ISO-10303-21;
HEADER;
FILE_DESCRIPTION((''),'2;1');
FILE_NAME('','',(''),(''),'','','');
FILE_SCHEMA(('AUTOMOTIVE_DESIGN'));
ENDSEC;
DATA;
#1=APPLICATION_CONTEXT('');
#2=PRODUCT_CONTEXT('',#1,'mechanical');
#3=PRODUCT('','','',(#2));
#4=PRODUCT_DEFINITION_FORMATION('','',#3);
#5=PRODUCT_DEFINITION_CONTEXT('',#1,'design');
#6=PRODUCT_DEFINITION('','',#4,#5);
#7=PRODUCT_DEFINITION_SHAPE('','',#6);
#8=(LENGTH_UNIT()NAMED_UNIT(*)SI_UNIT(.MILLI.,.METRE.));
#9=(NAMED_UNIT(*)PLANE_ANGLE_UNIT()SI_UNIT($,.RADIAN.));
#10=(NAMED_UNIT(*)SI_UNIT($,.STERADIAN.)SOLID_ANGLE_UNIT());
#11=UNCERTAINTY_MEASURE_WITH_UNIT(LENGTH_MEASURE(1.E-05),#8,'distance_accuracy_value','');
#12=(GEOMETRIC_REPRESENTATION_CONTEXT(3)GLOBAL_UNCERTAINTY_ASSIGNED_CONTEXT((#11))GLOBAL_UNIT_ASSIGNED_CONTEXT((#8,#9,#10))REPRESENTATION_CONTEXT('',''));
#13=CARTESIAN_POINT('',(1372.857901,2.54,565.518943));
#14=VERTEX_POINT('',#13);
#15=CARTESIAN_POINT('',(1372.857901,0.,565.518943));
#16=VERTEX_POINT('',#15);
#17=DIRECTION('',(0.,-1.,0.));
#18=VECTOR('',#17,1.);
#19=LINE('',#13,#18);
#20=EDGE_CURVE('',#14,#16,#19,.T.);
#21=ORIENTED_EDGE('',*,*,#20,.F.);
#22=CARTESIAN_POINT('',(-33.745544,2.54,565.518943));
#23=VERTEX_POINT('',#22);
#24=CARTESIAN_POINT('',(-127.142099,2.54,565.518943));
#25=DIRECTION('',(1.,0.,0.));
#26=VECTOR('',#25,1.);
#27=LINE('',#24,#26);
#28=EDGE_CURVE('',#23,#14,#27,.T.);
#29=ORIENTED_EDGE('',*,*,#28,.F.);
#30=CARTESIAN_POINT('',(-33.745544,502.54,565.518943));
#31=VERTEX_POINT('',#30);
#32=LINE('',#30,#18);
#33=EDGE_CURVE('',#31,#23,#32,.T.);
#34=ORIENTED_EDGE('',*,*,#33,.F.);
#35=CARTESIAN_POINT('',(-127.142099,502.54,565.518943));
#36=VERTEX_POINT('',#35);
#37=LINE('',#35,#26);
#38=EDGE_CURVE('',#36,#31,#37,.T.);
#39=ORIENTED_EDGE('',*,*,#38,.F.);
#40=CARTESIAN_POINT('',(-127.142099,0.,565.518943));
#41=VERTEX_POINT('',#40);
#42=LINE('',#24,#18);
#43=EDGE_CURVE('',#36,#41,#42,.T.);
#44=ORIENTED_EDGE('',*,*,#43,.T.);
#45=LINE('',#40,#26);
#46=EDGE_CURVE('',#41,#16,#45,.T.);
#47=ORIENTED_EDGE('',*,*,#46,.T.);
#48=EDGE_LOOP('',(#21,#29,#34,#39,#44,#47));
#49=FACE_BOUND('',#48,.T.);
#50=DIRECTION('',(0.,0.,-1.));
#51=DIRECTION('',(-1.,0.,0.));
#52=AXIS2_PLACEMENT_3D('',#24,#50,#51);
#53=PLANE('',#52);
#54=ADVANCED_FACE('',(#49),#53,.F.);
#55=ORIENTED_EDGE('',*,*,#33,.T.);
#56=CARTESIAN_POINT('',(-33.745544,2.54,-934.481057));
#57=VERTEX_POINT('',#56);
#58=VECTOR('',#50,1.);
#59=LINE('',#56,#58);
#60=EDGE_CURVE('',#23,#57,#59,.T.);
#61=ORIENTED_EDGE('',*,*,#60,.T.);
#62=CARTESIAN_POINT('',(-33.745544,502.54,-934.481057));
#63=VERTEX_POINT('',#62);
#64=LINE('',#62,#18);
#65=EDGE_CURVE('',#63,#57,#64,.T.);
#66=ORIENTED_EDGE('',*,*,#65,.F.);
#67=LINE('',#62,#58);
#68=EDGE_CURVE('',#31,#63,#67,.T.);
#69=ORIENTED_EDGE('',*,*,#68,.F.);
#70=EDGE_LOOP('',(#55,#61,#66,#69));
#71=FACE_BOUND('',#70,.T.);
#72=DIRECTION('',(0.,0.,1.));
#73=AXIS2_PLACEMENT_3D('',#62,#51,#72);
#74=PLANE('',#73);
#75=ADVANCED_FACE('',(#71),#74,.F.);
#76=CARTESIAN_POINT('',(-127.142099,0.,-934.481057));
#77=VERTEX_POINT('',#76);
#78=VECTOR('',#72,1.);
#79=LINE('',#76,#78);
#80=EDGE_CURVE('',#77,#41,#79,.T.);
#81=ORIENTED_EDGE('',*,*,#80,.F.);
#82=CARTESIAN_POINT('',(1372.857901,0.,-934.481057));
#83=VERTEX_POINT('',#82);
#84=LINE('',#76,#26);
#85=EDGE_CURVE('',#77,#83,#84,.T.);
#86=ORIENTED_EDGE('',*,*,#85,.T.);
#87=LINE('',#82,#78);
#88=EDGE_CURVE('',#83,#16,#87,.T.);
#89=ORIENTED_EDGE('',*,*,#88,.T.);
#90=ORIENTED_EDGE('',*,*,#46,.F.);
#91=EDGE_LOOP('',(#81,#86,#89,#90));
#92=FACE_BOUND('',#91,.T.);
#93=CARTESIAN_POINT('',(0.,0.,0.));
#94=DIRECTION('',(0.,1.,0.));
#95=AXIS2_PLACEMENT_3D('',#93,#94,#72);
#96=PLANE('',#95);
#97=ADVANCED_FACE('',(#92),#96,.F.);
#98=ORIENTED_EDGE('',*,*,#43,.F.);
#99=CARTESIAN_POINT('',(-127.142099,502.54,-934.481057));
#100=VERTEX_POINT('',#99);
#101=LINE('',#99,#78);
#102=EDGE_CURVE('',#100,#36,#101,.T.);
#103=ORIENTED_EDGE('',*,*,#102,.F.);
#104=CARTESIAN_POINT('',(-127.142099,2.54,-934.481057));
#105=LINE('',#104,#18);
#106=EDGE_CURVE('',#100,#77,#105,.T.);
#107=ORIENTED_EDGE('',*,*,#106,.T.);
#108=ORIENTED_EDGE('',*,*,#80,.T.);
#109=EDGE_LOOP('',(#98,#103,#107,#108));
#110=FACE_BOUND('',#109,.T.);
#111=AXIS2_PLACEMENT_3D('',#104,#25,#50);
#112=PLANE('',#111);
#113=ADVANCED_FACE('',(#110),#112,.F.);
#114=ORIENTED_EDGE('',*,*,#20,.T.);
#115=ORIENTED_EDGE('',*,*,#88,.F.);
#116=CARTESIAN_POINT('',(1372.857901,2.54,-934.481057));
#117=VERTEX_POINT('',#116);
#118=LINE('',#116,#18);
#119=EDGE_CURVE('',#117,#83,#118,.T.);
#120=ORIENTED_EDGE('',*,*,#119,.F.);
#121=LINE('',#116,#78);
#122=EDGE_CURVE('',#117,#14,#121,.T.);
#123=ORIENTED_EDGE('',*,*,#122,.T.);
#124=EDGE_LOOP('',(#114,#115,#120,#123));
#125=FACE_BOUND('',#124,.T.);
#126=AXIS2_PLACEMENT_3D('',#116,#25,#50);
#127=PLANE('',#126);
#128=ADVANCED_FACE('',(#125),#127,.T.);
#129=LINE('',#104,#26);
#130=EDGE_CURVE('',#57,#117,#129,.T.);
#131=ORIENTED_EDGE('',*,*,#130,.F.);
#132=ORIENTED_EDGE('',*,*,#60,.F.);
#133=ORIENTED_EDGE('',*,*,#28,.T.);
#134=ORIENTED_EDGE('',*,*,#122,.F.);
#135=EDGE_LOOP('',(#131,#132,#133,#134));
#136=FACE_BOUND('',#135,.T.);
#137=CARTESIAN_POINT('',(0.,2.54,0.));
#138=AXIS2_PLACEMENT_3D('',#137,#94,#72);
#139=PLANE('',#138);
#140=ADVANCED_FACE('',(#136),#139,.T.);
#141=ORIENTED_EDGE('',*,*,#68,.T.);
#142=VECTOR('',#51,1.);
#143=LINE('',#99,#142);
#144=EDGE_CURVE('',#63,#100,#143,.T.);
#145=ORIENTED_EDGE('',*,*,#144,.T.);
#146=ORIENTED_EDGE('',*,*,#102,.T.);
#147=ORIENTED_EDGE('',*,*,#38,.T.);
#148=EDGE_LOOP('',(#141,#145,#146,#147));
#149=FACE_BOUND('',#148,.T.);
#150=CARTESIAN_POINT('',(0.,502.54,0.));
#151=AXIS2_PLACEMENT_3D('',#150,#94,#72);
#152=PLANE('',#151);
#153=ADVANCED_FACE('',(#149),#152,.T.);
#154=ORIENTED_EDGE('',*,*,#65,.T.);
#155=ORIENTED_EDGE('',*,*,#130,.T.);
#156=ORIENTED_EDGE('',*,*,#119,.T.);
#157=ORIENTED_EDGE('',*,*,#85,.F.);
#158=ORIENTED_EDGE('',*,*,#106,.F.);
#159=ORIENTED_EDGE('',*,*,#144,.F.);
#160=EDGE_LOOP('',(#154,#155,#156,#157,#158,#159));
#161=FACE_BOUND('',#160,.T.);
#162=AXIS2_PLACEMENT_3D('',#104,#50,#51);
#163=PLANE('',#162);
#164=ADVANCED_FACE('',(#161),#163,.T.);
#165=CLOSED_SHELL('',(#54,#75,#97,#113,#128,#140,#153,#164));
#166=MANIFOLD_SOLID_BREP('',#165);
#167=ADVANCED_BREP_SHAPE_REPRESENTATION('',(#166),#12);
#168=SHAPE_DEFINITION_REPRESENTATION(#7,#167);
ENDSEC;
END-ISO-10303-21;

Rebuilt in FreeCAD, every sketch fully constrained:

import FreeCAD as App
import Part
import Sketcher
from FreeCAD import Vector

doc = App.newDocument("Part")
body = doc.addObject("PartDesign::Body", "Body")

# Sketch on XZ plane
sketch1 = body.newObject("Sketcher::SketchObject", "Sketch")
sketch1.AttachmentSupport = (doc.getObject("XZ_Plane"), [""])
sketch1.MapMode = "FlatFace"
sketch1.addGeometry(Part.LineSegment(Vector(-127, -934, 0), Vector(-127, 566, 0)), False)
sketch1.addGeometry(Part.LineSegment(Vector(-127, 566, 0), Vector(1373, 566, 0)), False)
sketch1.addGeometry(Part.LineSegment(Vector(1373, 566, 0), Vector(1373, -934, 0)), False)
sketch1.addGeometry(Part.LineSegment(Vector(1373, -934, 0), Vector(-127, -934, 0)), False)
sketch1.addConstraint(Sketcher.Constraint("Coincident", 0, 2, 1, 1))
sketch1.addConstraint(Sketcher.Constraint("Coincident", 1, 2, 2, 1))
sketch1.addConstraint(Sketcher.Constraint("Coincident", 2, 2, 3, 1))
sketch1.addConstraint(Sketcher.Constraint("Coincident", 3, 2, 0, 1))
sketch1.addConstraint(Sketcher.Constraint("Vertical", 0))
sketch1.addConstraint(Sketcher.Constraint("Horizontal", 1))
sketch1.addConstraint(Sketcher.Constraint("Vertical", 2))
sketch1.addConstraint(Sketcher.Constraint("Horizontal", 3))
sketch1.addConstraint(Sketcher.Constraint("Equal", 3, 0))
sketch1.addConstraint(Sketcher.Constraint("DistanceX", 1, 1, 1, 2, 1500.0))
sketch1.addConstraint(Sketcher.Constraint("DistanceX", 0, 2, -1, 1, 127.142099))
sketch1.addConstraint(Sketcher.Constraint("DistanceY", -1, 1, 0, 2, 565.518943))
pad1 = body.newObject("PartDesign::Pad", "Pad")
pad1.Profile = sketch1
pad1.Length = 2.54
pad1.Reversed = True

# Sketch on XZ plane
sketch2 = body.newObject("Sketcher::SketchObject", "Sketch001")
sketch2.AttachmentSupport = (doc.getObject("XZ_Plane"), [""])
sketch2.MapMode = "FlatFace"
sketch2.AttachmentOffset = App.Placement(Vector(0, 0, -2.54), App.Rotation())
sketch2.addGeometry(Part.LineSegment(Vector(-127, -934, 0), Vector(-127, 566, 0)), False)
sketch2.addGeometry(Part.LineSegment(Vector(-127, 566, 0), Vector(-34, 566, 0)), False)
sketch2.addGeometry(Part.LineSegment(Vector(-34, 566, 0), Vector(-34, -934, 0)), False)
sketch2.addGeometry(Part.LineSegment(Vector(-34, -934, 0), Vector(-127, -934, 0)), False)
sketch2.addConstraint(Sketcher.Constraint("Coincident", 0, 2, 1, 1))
sketch2.addConstraint(Sketcher.Constraint("Coincident", 1, 2, 2, 1))
sketch2.addConstraint(Sketcher.Constraint("Coincident", 2, 2, 3, 1))
sketch2.addConstraint(Sketcher.Constraint("Coincident", 3, 2, 0, 1))
sketch2.addConstraint(Sketcher.Constraint("Vertical", 0))
sketch2.addConstraint(Sketcher.Constraint("Horizontal", 1))
sketch2.addConstraint(Sketcher.Constraint("Vertical", 2))
sketch2.addConstraint(Sketcher.Constraint("Horizontal", 3))
sketch2.addConstraint(Sketcher.Constraint("DistanceY", 0, 1, 0, 2, 1500.0))
sketch2.addConstraint(Sketcher.Constraint("DistanceX", 0, 2, -1, 1, 127.142099))
sketch2.addConstraint(Sketcher.Constraint("DistanceX", 1, 1, 1, 2, 93.396555))
sketch2.addConstraint(Sketcher.Constraint("DistanceY", -1, 1, 0, 2, 565.518943))
pad2 = body.newObject("PartDesign::Pad", "Pad001")
pad2.Profile = sketch2
pad2.Length = 500
pad2.Reversed = True

doc.recompute()
